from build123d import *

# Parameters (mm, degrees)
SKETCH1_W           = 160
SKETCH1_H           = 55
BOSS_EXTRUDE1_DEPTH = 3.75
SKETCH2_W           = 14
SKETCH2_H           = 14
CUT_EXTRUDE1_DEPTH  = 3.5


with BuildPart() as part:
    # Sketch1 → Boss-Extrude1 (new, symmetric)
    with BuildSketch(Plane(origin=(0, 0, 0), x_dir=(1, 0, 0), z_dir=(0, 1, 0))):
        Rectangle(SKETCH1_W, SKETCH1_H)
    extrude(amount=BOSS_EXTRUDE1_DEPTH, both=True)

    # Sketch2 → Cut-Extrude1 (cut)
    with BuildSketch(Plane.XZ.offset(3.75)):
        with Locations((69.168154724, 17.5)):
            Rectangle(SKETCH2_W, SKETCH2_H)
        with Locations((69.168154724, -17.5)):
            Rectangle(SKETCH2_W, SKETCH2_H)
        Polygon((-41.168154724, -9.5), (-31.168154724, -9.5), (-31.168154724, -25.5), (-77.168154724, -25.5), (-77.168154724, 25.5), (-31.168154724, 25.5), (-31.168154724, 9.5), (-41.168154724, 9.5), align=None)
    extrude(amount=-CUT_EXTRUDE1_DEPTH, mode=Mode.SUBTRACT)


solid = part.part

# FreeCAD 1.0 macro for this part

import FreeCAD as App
import Part
import Sketcher

doc = App.newDocument("Part")
body = doc.addObject("PartDesign::Body", "Body")

sketch1 = doc.addObject("Sketcher::SketchObject", "Sketch")
body.addObject(sketch1)
sketch1.AttachmentSupport = (doc.XZ_Plane, [""])
sketch1.MapMode = "FlatFace"
sketch1.addGeometry([
    Part.LineSegment(App.Vector(-80, -27.5, 0), App.Vector(-80, 27.5, 0)),
    Part.LineSegment(App.Vector(-80, 27.5, 0), App.Vector(80, 27.5, 0)),
    Part.LineSegment(App.Vector(80, 27.5, 0), App.Vector(80, -27.5, 0)),
    Part.LineSegment(App.Vector(80, -27.5, 0), App.Vector(-80, -27.5, 0)),
], False)
sketch1.addConstraint([
    Sketcher.Constraint("Coincident", 0, 2, 1, 1),
    Sketcher.Constraint("Coincident", 1, 2, 2, 1),
    Sketcher.Constraint("Coincident", 2, 2, 3, 1),
    Sketcher.Constraint("Coincident", 3, 2, 0, 1),
    Sketcher.Constraint("Vertical", 0),
    Sketcher.Constraint("Horizontal", 1),
    Sketcher.Constraint("Vertical", 2),
    Sketcher.Constraint("Horizontal", 3),
    Sketcher.Constraint("Symmetric", 0, 2, 2, 2, -1, 1),
    Sketcher.Constraint("DistanceX", 1, 1, 1, 2, 160.0),
    Sketcher.Constraint("DistanceY", 0, 1, 0, 2, 55.0),
])
pad1 = doc.addObject("PartDesign::Pad", "Pad")
body.addObject(pad1)
pad1.Profile = sketch1
pad1.Length = 7.5
pad1.Midplane = True

sketch2 = doc.addObject("Sketcher::SketchObject", "Sketch001")
body.addObject(sketch2)
sketch2.AttachmentSupport = (doc.XZ_Plane, [""])
sketch2.MapMode = "FlatFace"
sketch2.AttachmentOffset = App.Placement(App.Vector(0, 0, 3.75), App.Rotation())
sketch2.addGeometry([
    Part.LineSegment(App.Vector(62.168155, 24.5, 0), App.Vector(62.168155, 10.5, 0)),
    Part.LineSegment(App.Vector(62.168155, 10.5, 0), App.Vector(76.168155, 10.5, 0)),
    Part.LineSegment(App.Vector(76.168155, 10.5, 0), App.Vector(76.168155, 24.5, 0)),
    Part.LineSegment(App.Vector(76.168155, 24.5, 0), App.Vector(62.168155, 24.5, 0)),
    Part.LineSegment(App.Vector(62.168155, -10.5, 0), App.Vector(62.168155, -24.5, 0)),
    Part.LineSegment(App.Vector(62.168155, -24.5, 0), App.Vector(76.168155, -24.5, 0)),
    Part.LineSegment(App.Vector(76.168155, -24.5, 0), App.Vector(76.168155, -10.5, 0)),
    Part.LineSegment(App.Vector(76.168155, -10.5, 0), App.Vector(62.168155, -10.5, 0)),
    Part.LineSegment(App.Vector(-31.168155, -9.5, 0), App.Vector(-41.168155, -9.5, 0)),
    Part.LineSegment(App.Vector(-41.168155, -9.5, 0), App.Vector(-41.168155, 9.5, 0)),
    Part.LineSegment(App.Vector(-41.168155, 9.5, 0), App.Vector(-31.168155, 9.5, 0)),
    Part.LineSegment(App.Vector(-31.168155, 9.5, 0), App.Vector(-31.168155, 25.5, 0)),
    Part.LineSegment(App.Vector(-31.168155, 25.5, 0), App.Vector(-77.168155, 25.5, 0)),
    Part.LineSegment(App.Vector(-77.168155, 25.5, 0), App.Vector(-77.168155, -25.5, 0)),
    Part.LineSegment(App.Vector(-77.168155, -25.5, 0), App.Vector(-31.168155, -25.5, 0)),
    Part.LineSegment(App.Vector(-31.168155, -25.5, 0), App.Vector(-31.168155, -9.5, 0)),
], False)
sketch2.addConstraint([
    Sketcher.Constraint("Coincident", 0, 2, 1, 1),
    Sketcher.Constraint("Coincident", 1, 2, 2, 1),
    Sketcher.Constraint("Coincident", 2, 2, 3, 1),
    Sketcher.Constraint("Coincident", 3, 2, 0, 1),
    Sketcher.Constraint("Coincident", 4, 2, 5, 1),
    Sketcher.Constraint("Coincident", 5, 2, 6, 1),
    Sketcher.Constraint("Coincident", 6, 2, 7, 1),
    Sketcher.Constraint("Coincident", 7, 2, 4, 1),
    Sketcher.Constraint("Coincident", 8, 2, 9, 1),
    Sketcher.Constraint("Coincident", 9, 2, 10, 1),
    Sketcher.Constraint("Coincident", 10, 2, 11, 1),
    Sketcher.Constraint("Coincident", 11, 2, 12, 1),
    Sketcher.Constraint("Coincident", 12, 2, 13, 1),
    Sketcher.Constraint("Coincident", 13, 2, 14, 1),
    Sketcher.Constraint("Coincident", 14, 2, 15, 1),
    Sketcher.Constraint("Coincident", 15, 2, 8, 1),
    Sketcher.Constraint("Vertical", 0),
    Sketcher.Constraint("Horizontal", 1),
    Sketcher.Constraint("Vertical", 2),
    Sketcher.Constraint("Horizontal", 3),
    Sketcher.Constraint("Vertical", 4),
    Sketcher.Constraint("Horizontal", 5),
    Sketcher.Constraint("Vertical", 6),
    Sketcher.Constraint("Horizontal", 7),
    Sketcher.Constraint("Horizontal", 8),
    Sketcher.Constraint("Vertical", 9),
    Sketcher.Constraint("Horizontal", 10),
    Sketcher.Constraint("Vertical", 11),
    Sketcher.Constraint("Horizontal", 12),
    Sketcher.Constraint("Vertical", 13),
    Sketcher.Constraint("Horizontal", 14),
    Sketcher.Constraint("Vertical", 15),
    Sketcher.Constraint("Symmetric", 3, 2, 4, 2, -1),
    Sketcher.Constraint("Symmetric", 1, 2, 6, 2, -1),
    Sketcher.Constraint("Symmetric", 11, 2, 14, 2, -1),
    Sketcher.Constraint("Equal", 7, 0),
    Sketcher.Constraint("Equal", 11, 15),
    Sketcher.Constraint("DistanceX", 1, 1, 1, 2, 14.0),
    Sketcher.Constraint("DistanceX", 8, 2, 8, 1, 10.0),
    Sketcher.Constraint("DistanceX", 12, 2, 12, 1, 46.0),
    Sketcher.Constraint("DistanceY", 9, 1, 9, 2, 19.0),
    Sketcher.Constraint("DistanceY", 11, 1, 11, 2, 16.0),
    Sketcher.Constraint("DistanceY", 4, 2, 0, 2, 35.0),
    Sketcher.Constraint("DistanceX", 8, 2, 7, 2, 103.336309),
    Sketcher.Constraint("DistanceX", -1, 1, 0, 2, 62.168155),
])
pocket1 = doc.addObject("PartDesign::Pocket", "Pocket")
body.addObject(pocket1)
pocket1.Profile = sketch2
pocket1.Length = 3.5

doc.recompute()
